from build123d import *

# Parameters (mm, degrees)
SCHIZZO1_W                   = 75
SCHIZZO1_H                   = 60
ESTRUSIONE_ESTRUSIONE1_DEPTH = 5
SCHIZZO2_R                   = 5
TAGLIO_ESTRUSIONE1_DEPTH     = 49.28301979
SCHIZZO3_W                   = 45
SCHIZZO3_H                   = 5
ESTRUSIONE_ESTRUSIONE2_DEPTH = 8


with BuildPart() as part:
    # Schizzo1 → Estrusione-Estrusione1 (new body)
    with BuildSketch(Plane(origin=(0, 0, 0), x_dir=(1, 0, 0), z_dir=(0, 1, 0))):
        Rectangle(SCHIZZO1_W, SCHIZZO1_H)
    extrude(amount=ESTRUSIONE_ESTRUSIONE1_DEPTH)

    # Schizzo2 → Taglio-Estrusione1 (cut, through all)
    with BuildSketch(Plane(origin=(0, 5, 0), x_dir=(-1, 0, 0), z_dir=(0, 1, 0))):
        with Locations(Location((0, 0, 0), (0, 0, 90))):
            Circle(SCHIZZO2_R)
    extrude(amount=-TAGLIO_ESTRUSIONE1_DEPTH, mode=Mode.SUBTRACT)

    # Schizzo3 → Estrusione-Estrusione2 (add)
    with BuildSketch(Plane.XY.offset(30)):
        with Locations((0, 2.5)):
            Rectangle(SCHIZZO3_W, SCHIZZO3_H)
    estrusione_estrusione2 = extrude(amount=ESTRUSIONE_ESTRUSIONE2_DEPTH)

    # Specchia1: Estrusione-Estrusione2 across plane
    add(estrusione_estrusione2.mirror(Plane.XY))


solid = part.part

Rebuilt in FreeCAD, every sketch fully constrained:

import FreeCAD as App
import Part
import Sketcher
from FreeCAD import Vector
Q = App.Units.Quantity


def add_polygon(sketch, points):
    """Adds a closed chain of lines whose ends are joined by coincident constraints."""
    first, n = sketch.GeometryCount, len(points)
    for a, b in zip(points, points[1:] + points[:1]):
        sketch.addGeometry(Part.LineSegment(App.Vector(*a, 0), App.Vector(*b, 0)), False)
    for i in range(n):
        sketch.addConstraint(Sketcher.Constraint("Coincident", first + i, 2, first + (i + 1) % n, 1))

doc = App.newDocument("Part")
params = doc.addObject("Spreadsheet::Sheet", "Params")
for row, (alias, value) in enumerate([
    ("sketch1_width", "75 mm"),
    ("sketch1_height", "60 mm"),
    ("pad1_length", "5 mm"),
    ("sketch2_diameter", "10 mm"),
    ("sketch3_width", "45 mm"),
    ("sketch3_height", "5 mm"),
    ("pad2_length", "8 mm"),
], start=1):
    params.set(f"A{row}", alias)
    params.set(f"B{row}", "=" + value)
    params.setAlias(f"B{row}", alias)

body = doc.addObject("PartDesign::Body", "Body")

sketch1 = body.newObject("Sketcher::SketchObject", "Sketch")
sketch1.AttachmentSupport = (doc.getObject("XZ_Plane"), [""])
sketch1.MapMode = "FlatFace"
add_polygon(sketch1, [(-37.5, -30), (-37.5, 30), (37.5, 30), (37.5, -30)])
sketch1.addConstraint([
    Sketcher.Constraint("Vertical", 0),
    Sketcher.Constraint("Horizontal", 1),
    Sketcher.Constraint("Vertical", 2),
    Sketcher.Constraint("Horizontal", 3),
    Sketcher.Constraint("Symmetric", 0, 2, 2, 2, -1, 1),
    Sketcher.Constraint("DistanceX", 1, 1, 1, 2, Q("75 mm")),
    Sketcher.Constraint("DistanceY", 0, 1, 0, 2, Q("60 mm")),
])
sketch1.setExpression("Constraints[9]", "Params.sketch1_width")
sketch1.setExpression("Constraints[10]", "Params.sketch1_height")
pad1 = body.newObject("PartDesign::Pad", "Pad")
pad1.Profile = sketch1
pad1.setExpression("Length", "Params.pad1_length")
pad1.Reversed = True

sketch2 = body.newObject("Sketcher::SketchObject", "Sketch001")
sketch2.AttachmentSupport = (doc.getObject("XZ_Plane"), [""])
sketch2.MapMode = "FlatFace"
sketch2.AttachmentOffset = App.Placement(Vector(0, 0, -5), App.Rotation())
sketch2.addGeometry(Part.Circle(Vector(0, 0, 0), Vector(0, 0, 1), 5), False)
sketch2.addConstraint([
    Sketcher.Constraint("Coincident", 0, 3, -1, 1),
    Sketcher.Constraint("Diameter", 0, Q("10 mm")),
])
sketch2.setExpression("Constraints[1]", "Params.sketch2_diameter")
pocket1 = body.newObject("PartDesign::Pocket", "Pocket")
pocket1.Profile = sketch2
pocket1.Type = "ThroughAll"
pocket1.Reversed = True

sketch3 = body.newObject("Sketcher::SketchObject", "Sketch002")
sketch3.AttachmentSupport = (doc.getObject("XY_Plane"), [""])
sketch3.MapMode = "FlatFace"
sketch3.AttachmentOffset = App.Placement(Vector(0, 0, 30), App.Rotation())
add_polygon(sketch3, [(-22.5, 5), (-22.5, 0), (22.5, 0), (22.5, 5)])
sketch3.addConstraint([
    Sketcher.Constraint("Vertical", 0),
    Sketcher.Constraint("Horizontal", 1),
    Sketcher.Constraint("Vertical", 2),
    Sketcher.Constraint("Horizontal", 3),
    Sketcher.Constraint("Symmetric", 0, 2, 1, 2, -1, 1),
    Sketcher.Constraint("DistanceX", 1, 1, 1, 2, Q("45 mm")),
    Sketcher.Constraint("DistanceY", 0, 2, 0, 1, Q("5 mm")),
])
sketch3.setExpression("Constraints[9]", "Params.sketch3_width")
sketch3.setExpression("Constraints[10]", "Params.sketch3_height")
pad2 = body.newObject("PartDesign::Pad", "Pad001")
pad2.Profile = sketch3
pad2.setExpression("Length", "Params.pad2_length")
doc.recompute()

mirrored = body.newObject("PartDesign::Mirrored", "Mirrored")
mirrored.Originals = [pad2]
mirrored.MirrorPlane = (doc.getObject("XY_Plane"), [""])
body.Tip = mirrored

doc.recompute()
